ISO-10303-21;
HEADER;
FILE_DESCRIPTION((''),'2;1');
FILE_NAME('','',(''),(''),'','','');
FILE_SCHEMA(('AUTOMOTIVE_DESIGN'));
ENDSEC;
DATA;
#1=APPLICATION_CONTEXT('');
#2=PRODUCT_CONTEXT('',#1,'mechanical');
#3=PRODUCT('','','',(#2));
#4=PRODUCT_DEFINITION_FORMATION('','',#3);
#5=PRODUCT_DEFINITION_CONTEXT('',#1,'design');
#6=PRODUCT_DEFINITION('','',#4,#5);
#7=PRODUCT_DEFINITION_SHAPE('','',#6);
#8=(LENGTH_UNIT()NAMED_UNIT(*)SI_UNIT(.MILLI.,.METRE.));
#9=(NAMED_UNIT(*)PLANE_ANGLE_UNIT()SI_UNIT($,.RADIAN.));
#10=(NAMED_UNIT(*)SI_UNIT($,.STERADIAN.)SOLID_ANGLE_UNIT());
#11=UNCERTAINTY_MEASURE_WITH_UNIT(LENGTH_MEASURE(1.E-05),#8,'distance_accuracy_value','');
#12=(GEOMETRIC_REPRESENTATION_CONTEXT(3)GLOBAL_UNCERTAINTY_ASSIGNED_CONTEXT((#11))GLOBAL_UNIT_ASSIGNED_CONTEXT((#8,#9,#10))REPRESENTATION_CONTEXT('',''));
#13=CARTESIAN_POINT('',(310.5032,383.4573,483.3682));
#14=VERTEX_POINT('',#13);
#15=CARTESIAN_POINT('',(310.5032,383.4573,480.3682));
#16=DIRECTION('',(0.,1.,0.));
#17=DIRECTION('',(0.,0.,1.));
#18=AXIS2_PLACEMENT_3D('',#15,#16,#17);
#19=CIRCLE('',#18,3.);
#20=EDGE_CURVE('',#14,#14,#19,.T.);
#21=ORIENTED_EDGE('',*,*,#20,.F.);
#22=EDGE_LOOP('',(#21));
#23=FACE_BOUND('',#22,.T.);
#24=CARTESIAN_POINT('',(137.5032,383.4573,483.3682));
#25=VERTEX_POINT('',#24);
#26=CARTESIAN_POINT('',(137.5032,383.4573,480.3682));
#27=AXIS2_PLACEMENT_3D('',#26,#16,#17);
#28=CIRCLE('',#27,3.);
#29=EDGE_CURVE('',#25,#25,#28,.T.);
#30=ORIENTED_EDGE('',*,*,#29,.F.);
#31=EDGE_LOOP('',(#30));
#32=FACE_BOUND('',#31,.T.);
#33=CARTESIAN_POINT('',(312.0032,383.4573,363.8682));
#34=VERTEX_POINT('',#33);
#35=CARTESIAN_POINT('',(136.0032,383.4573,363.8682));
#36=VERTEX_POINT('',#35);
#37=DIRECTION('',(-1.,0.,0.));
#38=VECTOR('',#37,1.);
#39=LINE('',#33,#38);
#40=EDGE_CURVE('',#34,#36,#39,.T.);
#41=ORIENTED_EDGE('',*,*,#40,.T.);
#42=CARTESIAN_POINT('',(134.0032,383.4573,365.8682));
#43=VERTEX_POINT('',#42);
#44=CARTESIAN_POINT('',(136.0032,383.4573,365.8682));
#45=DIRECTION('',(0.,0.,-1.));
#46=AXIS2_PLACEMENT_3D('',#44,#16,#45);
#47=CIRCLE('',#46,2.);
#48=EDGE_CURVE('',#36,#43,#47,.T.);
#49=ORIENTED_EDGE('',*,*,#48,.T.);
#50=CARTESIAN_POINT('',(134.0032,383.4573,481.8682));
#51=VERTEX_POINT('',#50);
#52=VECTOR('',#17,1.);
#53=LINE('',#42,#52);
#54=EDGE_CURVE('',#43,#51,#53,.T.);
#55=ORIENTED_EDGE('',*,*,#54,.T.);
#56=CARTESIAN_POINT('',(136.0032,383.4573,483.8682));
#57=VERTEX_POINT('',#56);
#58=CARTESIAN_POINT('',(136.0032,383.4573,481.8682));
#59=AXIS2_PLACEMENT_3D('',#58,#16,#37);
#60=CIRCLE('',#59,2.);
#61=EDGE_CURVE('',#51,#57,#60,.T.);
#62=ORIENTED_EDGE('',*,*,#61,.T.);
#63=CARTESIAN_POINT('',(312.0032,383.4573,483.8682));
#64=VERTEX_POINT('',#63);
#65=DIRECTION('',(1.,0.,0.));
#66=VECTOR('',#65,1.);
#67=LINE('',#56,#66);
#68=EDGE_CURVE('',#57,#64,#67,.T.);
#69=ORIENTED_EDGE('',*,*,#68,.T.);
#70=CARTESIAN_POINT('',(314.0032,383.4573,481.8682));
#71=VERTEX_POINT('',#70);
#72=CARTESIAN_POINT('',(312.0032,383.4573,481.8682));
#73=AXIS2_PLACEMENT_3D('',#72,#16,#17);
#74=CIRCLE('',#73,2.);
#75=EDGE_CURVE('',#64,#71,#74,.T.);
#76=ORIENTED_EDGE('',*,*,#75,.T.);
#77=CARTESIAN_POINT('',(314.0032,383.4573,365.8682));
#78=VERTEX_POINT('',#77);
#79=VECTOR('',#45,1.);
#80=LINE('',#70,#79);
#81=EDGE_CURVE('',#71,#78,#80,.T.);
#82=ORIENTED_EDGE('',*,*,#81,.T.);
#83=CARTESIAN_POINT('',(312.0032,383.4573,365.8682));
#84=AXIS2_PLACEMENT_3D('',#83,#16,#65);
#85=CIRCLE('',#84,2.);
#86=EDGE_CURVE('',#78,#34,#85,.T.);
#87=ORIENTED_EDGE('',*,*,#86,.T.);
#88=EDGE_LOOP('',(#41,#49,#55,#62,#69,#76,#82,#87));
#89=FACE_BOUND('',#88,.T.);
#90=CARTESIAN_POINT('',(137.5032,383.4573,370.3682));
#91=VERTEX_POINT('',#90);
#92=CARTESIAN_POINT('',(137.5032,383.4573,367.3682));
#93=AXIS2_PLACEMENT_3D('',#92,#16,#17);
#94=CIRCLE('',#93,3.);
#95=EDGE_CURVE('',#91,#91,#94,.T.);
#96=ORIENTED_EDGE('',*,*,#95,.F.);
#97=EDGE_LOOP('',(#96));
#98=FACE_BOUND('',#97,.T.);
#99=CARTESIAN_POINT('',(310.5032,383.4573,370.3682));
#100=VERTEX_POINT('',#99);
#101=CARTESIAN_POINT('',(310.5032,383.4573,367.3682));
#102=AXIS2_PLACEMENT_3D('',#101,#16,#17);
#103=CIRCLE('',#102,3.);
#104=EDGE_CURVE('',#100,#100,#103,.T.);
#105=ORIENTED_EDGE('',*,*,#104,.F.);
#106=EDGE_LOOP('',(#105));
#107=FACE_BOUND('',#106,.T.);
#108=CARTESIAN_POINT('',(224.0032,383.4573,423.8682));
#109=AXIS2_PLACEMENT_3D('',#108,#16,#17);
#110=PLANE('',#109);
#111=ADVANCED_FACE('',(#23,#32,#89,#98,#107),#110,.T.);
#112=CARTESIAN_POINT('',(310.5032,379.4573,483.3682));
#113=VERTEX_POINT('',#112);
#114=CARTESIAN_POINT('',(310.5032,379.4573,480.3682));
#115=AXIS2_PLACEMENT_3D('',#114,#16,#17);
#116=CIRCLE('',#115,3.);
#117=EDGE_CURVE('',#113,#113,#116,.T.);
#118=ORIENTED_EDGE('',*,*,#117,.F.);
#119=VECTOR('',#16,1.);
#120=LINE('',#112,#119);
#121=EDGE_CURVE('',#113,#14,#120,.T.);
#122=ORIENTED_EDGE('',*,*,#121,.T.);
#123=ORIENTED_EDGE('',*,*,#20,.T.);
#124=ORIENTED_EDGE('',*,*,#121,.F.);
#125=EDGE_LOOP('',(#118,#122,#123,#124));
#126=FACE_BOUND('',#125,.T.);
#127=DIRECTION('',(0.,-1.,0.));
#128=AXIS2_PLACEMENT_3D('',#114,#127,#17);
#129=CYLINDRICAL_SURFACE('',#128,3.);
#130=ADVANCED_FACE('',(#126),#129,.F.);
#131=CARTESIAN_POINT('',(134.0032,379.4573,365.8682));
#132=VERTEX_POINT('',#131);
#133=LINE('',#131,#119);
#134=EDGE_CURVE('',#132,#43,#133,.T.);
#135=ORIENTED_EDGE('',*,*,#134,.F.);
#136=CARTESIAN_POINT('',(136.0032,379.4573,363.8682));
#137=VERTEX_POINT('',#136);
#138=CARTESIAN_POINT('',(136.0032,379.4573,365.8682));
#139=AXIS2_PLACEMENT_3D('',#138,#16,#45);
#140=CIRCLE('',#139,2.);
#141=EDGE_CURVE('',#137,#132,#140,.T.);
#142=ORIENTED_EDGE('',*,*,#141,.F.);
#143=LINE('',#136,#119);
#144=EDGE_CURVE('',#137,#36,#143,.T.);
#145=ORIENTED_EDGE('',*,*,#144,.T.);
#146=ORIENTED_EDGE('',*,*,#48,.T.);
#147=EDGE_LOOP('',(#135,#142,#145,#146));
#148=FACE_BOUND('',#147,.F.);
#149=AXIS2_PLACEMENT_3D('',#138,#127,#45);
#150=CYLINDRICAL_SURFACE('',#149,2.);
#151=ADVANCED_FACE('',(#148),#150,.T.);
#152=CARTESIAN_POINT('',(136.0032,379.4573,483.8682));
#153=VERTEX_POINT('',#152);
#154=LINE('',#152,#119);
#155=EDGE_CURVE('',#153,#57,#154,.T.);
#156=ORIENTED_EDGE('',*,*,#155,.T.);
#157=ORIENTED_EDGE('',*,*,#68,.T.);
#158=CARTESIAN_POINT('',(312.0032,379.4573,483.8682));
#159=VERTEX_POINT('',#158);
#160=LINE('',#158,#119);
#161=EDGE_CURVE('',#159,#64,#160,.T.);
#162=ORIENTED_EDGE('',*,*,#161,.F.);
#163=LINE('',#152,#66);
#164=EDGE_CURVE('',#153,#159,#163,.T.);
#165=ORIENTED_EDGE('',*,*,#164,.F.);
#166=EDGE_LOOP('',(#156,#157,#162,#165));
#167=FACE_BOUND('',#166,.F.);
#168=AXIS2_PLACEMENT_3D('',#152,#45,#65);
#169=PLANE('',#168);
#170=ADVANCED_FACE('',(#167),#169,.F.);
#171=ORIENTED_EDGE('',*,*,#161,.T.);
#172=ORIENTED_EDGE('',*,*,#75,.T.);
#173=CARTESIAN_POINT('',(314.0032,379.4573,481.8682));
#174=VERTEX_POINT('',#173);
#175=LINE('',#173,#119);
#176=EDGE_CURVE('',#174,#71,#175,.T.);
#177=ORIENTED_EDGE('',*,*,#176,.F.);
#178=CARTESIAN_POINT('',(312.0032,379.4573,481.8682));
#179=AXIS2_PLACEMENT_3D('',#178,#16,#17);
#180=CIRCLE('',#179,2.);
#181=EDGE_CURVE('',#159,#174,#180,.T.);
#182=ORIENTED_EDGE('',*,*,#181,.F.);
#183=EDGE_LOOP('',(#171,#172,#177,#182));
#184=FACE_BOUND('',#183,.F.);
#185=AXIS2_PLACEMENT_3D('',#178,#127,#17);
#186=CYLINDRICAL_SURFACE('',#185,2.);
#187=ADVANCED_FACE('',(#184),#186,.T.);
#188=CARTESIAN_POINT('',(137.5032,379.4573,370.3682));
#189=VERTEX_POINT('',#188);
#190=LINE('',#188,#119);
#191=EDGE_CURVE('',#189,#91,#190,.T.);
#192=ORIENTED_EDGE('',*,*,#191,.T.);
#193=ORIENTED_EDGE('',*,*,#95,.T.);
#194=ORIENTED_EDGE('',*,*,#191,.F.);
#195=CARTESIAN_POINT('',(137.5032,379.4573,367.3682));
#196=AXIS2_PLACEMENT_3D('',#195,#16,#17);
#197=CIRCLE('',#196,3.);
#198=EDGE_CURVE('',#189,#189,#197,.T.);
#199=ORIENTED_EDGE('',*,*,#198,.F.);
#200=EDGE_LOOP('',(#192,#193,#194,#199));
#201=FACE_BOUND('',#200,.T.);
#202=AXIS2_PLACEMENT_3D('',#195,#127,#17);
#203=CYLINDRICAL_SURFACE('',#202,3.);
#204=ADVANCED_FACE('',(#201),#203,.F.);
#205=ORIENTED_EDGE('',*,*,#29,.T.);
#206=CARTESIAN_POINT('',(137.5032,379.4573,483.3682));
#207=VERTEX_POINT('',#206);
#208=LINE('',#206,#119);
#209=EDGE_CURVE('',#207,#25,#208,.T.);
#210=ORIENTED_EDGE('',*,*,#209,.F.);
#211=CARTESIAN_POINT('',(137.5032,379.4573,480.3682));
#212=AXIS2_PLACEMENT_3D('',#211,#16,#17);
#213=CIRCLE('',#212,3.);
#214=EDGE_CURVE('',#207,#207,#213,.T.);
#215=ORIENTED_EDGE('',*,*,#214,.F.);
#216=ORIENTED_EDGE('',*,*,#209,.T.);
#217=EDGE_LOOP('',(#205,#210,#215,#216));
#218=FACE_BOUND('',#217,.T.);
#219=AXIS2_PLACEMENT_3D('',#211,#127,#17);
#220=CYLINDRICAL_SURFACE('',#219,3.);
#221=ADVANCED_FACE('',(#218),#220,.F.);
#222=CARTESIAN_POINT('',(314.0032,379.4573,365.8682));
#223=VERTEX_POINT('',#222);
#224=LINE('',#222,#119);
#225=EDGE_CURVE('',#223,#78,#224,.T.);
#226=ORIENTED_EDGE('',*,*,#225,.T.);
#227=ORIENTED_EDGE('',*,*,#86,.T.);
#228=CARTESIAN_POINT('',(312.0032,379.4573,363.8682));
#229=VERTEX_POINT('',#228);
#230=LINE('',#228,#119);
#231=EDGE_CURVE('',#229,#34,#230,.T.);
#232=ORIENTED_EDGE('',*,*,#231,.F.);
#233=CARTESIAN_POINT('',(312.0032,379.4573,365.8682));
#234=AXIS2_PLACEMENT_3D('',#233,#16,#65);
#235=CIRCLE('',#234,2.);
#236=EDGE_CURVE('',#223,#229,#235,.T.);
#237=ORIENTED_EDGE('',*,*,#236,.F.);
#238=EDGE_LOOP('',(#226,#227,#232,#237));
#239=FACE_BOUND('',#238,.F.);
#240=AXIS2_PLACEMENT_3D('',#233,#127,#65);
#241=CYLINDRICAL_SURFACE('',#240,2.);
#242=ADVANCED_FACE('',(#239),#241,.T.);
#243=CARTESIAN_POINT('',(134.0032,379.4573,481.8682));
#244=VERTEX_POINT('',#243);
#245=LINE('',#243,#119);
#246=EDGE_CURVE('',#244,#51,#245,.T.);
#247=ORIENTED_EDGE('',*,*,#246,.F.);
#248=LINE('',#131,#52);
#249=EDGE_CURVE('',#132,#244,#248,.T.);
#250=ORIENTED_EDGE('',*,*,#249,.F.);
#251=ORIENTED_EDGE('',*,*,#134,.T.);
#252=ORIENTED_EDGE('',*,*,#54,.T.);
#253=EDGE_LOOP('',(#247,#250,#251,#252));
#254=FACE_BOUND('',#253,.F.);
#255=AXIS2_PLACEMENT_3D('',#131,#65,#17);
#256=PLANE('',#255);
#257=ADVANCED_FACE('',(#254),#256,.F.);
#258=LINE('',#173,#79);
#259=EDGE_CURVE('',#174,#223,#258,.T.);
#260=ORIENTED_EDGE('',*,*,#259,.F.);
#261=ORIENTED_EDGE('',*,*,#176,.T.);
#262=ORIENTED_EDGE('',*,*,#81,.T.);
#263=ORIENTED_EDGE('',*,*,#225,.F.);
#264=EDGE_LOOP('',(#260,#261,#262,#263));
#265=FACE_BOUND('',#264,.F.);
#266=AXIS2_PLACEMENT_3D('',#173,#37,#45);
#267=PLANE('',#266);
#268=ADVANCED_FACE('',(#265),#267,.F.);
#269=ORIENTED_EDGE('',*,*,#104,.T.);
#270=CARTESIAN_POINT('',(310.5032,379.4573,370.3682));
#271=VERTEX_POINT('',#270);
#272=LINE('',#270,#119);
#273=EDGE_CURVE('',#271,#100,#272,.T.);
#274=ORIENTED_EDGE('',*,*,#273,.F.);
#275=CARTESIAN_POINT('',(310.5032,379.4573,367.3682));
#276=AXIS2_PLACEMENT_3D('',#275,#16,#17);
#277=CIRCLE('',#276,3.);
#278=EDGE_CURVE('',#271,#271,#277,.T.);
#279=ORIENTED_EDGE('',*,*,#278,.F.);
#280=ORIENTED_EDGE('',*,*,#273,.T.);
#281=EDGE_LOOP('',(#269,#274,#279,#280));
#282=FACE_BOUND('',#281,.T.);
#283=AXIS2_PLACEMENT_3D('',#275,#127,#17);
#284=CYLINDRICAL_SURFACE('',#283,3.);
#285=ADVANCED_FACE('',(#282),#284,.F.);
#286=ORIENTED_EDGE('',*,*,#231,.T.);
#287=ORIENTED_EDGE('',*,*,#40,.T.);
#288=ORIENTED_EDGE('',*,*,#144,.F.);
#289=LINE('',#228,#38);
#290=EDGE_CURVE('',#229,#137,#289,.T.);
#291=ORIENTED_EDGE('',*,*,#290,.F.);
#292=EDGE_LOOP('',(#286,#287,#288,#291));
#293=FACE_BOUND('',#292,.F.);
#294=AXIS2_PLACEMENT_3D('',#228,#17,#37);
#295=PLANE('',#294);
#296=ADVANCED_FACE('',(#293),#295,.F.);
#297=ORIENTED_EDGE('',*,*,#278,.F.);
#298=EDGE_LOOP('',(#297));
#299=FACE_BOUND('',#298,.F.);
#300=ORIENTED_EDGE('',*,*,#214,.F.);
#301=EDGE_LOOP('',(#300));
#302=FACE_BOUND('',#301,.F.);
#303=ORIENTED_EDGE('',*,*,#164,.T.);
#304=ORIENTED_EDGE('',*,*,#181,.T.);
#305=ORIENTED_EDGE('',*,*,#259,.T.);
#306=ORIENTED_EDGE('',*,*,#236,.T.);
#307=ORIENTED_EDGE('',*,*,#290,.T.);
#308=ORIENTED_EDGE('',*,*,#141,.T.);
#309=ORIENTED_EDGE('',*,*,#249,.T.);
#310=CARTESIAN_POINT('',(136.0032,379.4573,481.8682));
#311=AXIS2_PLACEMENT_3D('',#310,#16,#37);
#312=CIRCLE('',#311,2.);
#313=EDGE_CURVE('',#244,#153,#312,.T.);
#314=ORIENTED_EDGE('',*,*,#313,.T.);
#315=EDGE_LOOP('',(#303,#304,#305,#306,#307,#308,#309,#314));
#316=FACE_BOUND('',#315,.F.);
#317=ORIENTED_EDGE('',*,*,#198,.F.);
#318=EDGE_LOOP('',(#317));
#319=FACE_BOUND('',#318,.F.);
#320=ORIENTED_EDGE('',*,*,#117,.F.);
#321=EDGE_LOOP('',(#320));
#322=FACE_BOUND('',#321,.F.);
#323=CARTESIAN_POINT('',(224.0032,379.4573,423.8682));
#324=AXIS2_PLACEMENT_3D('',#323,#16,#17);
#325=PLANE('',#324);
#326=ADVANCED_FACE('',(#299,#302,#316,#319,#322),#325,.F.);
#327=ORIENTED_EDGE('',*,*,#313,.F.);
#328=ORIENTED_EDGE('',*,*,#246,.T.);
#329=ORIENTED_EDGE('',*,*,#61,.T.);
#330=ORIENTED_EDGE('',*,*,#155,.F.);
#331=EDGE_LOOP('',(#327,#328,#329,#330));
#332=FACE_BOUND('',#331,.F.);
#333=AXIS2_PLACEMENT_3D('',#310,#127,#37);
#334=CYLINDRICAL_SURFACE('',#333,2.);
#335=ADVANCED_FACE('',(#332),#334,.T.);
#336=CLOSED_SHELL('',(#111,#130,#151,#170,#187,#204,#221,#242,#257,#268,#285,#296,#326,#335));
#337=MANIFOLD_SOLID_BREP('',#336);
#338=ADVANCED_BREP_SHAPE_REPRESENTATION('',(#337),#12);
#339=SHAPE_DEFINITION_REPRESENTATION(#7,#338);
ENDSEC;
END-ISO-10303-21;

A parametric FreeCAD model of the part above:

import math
import FreeCAD as App
import Part
import Sketcher

V = App.Vector

doc = App.newDocument("Part")
params = doc.addObject("Spreadsheet::Sheet", "Params")
for row, (alias, value) in enumerate([
    ("sketch1_diameter", "6 mm"),
    ("sketch1_radius", "2 mm"),
    ("sketch1_width", "176 mm"),
    ("sketch1_height", "116 mm"),
    ("pad1_length", "4 mm"),
], start=1):
    params.set(f"A{row}", alias)
    params.set(f"B{row}", "=" + value)
    params.setAlias(f"B{row}", alias)

body = doc.addObject("PartDesign::Body", "Body")

sketch1 = body.newObject("Sketcher::SketchObject", "Sketch")
sketch1.AttachmentSupport = (doc.getObject("XZ_Plane"), [""])
sketch1.MapMode = "FlatFace"
sketch1.AttachmentOffset = App.Placement(V(0, 0, -379.4573), App.Rotation())
sketch1.addGeometry([
    Part.LineSegment(V(312.0032, 363.8682, 0), V(136.0032, 363.8682, 0)),
    Part.ArcOfCircle(Part.Circle(V(136.0032, 365.8682, 0), V(0, 0, 1), 2), math.radians(180), math.radians(270)),
    Part.LineSegment(V(134.0032, 365.8682, 0), V(134.0032, 481.8682, 0)),
    Part.ArcOfCircle(Part.Circle(V(136.0032, 481.8682, 0), V(0, 0, 1), 2), math.radians(90), math.radians(180)),
    Part.LineSegment(V(136.0032, 483.8682, 0), V(312.0032, 483.8682, 0)),
    Part.ArcOfCircle(Part.Circle(V(312.0032, 481.8682, 0), V(0, 0, 1), 2), math.radians(0), math.radians(90)),
    Part.LineSegment(V(314.0032, 481.8682, 0), V(314.0032, 365.8682, 0)),
    Part.ArcOfCircle(Part.Circle(V(312.0032, 365.8682, 0), V(0, 0, 1), 2), math.radians(-90), math.radians(0)),
    Part.Circle(V(137.5032, 367.3682, 0), V(0, 0, 1), 3),
    Part.Circle(V(137.5032, 480.3682, 0), V(0, 0, 1), 3),
    Part.Circle(V(310.5032, 367.3682, 0), V(0, 0, 1), 3),
    Part.Circle(V(310.5032, 480.3682, 0), V(0, 0, 1), 3),
], False)
sketch1.addConstraint([
    Sketcher.Constraint("Tangent", 0, 2, 1, 2),
    Sketcher.Constraint("Tangent", 1, 1, 2, 1),
    Sketcher.Constraint("Tangent", 2, 2, 3, 2),
    Sketcher.Constraint("Tangent", 3, 1, 4, 1),
    Sketcher.Constraint("Tangent", 4, 2, 5, 2),
    Sketcher.Constraint("Tangent", 5, 1, 6, 1),
    Sketcher.Constraint("Tangent", 6, 2, 7, 2),
    Sketcher.Constraint("Tangent", 7, 1, 0, 1),
    Sketcher.Constraint("Horizontal", 0),
    Sketcher.Constraint("Vertical", 2),
    Sketcher.Constraint("Horizontal", 4),
    Sketcher.Constraint("Vertical", 6),
    Sketcher.Constraint("Equal", 1, 3),
    Sketcher.Constraint("Equal", 3, 5),
    Sketcher.Constraint("Equal", 5, 7),
    Sketcher.Constraint("Equal", 8, 9),
    Sketcher.Constraint("Equal", 9, 10),
    Sketcher.Constraint("Equal", 10, 11),
    Sketcher.Constraint("Horizontal", 8, 3, 10, 3),
    Sketcher.Constraint("Horizontal", 9, 3, 11, 3),
    Sketcher.Constraint("Vertical", 8, 3, 9, 3),
    Sketcher.Constraint("Vertical", 10, 3, 11, 3),
    Sketcher.Constraint("Diameter", 8, 6.0),
    Sketcher.Constraint("Radius", 1, 2.0),
    Sketcher.Constraint("DistanceX", 0, 2, 0, 1, 176.0),
    Sketcher.Constraint("DistanceY", 2, 1, 2, 2, 116.0),
    Sketcher.Constraint("DistanceY", 8, 3, 9, 3, 113.0),
    Sketcher.Constraint("DistanceX", 8, 3, 10, 3, 173.0),
    Sketcher.Constraint("DistanceX", 1, 3, 8, 3, 1.5),
    Sketcher.Constraint("DistanceY", 1, 3, 8, 3, 1.5),
    Sketcher.Constraint("DistanceX", -1, 1, 1, 3, 136.0032),
    Sketcher.Constraint("DistanceY", -1, 1, 1, 3, 365.8682),
])
sketch1.setExpression("Constraints[22]", "Params.sketch1_diameter")
sketch1.setExpression("Constraints[23]", "Params.sketch1_radius")
sketch1.setExpression("Constraints[24]", "Params.sketch1_width")
sketch1.setExpression("Constraints[25]", "Params.sketch1_height")
pad1 = body.newObject("PartDesign::Pad", "Pad")
pad1.Profile = sketch1
pad1.setExpression("Length", "Params.pad1_length")
pad1.Reversed = True

doc.recompute()
